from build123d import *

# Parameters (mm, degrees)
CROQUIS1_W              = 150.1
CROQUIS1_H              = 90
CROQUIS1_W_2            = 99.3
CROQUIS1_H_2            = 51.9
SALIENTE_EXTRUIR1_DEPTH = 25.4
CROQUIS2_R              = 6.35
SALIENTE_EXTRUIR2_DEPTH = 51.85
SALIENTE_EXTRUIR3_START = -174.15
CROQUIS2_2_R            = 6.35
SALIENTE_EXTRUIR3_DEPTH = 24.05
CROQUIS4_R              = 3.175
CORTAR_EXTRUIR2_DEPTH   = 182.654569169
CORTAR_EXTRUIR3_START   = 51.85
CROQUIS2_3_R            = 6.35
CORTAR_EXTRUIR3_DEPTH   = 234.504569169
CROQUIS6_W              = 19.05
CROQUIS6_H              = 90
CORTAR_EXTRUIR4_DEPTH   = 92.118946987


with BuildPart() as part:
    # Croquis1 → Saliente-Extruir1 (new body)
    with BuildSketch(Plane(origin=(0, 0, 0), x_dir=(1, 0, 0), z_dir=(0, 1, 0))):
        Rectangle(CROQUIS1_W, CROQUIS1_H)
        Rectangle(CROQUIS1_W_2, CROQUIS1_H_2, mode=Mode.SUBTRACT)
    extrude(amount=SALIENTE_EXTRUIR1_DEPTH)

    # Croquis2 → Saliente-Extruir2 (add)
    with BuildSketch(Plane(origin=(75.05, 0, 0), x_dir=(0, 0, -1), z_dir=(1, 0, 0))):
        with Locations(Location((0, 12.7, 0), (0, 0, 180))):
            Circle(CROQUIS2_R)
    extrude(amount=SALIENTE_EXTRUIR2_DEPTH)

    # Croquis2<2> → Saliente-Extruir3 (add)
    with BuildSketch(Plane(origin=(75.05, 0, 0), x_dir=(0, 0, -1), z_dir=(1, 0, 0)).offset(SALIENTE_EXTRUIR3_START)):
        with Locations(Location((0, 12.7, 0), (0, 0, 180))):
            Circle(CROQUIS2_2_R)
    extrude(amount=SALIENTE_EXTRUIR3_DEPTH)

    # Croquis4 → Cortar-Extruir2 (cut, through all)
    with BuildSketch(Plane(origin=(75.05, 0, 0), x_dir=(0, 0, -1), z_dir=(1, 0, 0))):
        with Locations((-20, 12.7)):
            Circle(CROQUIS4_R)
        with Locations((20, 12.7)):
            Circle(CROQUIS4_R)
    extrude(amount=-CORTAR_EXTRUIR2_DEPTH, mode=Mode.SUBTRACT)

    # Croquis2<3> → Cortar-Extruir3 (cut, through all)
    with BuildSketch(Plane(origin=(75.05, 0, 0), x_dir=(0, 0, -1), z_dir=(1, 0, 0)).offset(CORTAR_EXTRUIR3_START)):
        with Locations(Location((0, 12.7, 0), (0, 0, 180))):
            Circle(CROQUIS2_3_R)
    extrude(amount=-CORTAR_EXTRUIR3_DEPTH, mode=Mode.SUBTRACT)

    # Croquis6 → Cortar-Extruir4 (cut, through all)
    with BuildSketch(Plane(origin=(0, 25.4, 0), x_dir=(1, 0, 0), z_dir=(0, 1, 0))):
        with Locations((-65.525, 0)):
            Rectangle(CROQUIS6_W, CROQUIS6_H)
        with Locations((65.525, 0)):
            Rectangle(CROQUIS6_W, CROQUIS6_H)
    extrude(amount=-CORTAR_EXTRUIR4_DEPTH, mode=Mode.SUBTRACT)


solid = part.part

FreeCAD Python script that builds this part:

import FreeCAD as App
import Part
import Sketcher

V = App.Vector

doc = App.newDocument("Part")
body = doc.addObject("PartDesign::Body", "Body")

sketch1 = body.newObject("Sketcher::SketchObject", "Sketch")
sketch1.AttachmentSupport = (doc.getObject("XZ_Plane"), [""])
sketch1.MapMode = "FlatFace"
sketch1.addGeometry([
    Part.LineSegment(V(-75, -45, 0), V(-75, 45, 0)),
    Part.LineSegment(V(-75, 45, 0), V(75, 45, 0)),
    Part.LineSegment(V(75, 45, 0), V(75, -45, 0)),
    Part.LineSegment(V(75, -45, 0), V(-75, -45, 0)),
    Part.LineSegment(V(50, 26, 0), V(-50, 26, 0)),
    Part.LineSegment(V(-50, 26, 0), V(-50, -26, 0)),
    Part.LineSegment(V(-50, -26, 0), V(50, -26, 0)),
    Part.LineSegment(V(50, -26, 0), V(50, 26, 0)),
], False)
sketch1.addConstraint([
    Sketcher.Constraint("Coincident", 0, 2, 1, 1),
    Sketcher.Constraint("Coincident", 1, 2, 2, 1),
    Sketcher.Constraint("Coincident", 2, 2, 3, 1),
    Sketcher.Constraint("Coincident", 3, 2, 0, 1),
    Sketcher.Constraint("Coincident", 4, 2, 5, 1),
    Sketcher.Constraint("Coincident", 5, 2, 6, 1),
    Sketcher.Constraint("Coincident", 6, 2, 7, 1),
    Sketcher.Constraint("Coincident", 7, 2, 4, 1),
    Sketcher.Constraint("Vertical", 0),
    Sketcher.Constraint("Horizontal", 1),
    Sketcher.Constraint("Vertical", 2),
    Sketcher.Constraint("Horizontal", 3),
    Sketcher.Constraint("Horizontal", 4),
    Sketcher.Constraint("Vertical", 5),
    Sketcher.Constraint("Horizontal", 6),
    Sketcher.Constraint("Vertical", 7),
    Sketcher.Constraint("Symmetric", 0, 2, 2, 2, -1, 1),
    Sketcher.Constraint("Symmetric", 4, 2, 6, 2, -1, 1),
    Sketcher.Constraint("DistanceY", 0, 1, 0, 2, 90.0),
    Sketcher.Constraint("DistanceX", 1, 1, 1, 2, 150.1),
    Sketcher.Constraint("DistanceX", 4, 2, 4, 1, 99.3),
    Sketcher.Constraint("DistanceY", 5, 2, 5, 1, 51.9),
])
pad1 = body.newObject("PartDesign::Pad", "Pad")
pad1.Profile = sketch1
pad1.Length = 25.4
pad1.Reversed = True

sketch2 = body.newObject("Sketcher::SketchObject", "Sketch001")
sketch2.AttachmentSupport = (doc.getObject("YZ_Plane"), [""])
sketch2.MapMode = "FlatFace"
sketch2.AttachmentOffset = App.Placement(V(0, 0, 75.05), App.Rotation())
sketch2.addGeometry(Part.Circle(V(13, 0, 0), V(0, 0, 1), 6), False)
sketch2.addConstraint([
    Sketcher.Constraint("PointOnObject", 0, 3, -1),
    Sketcher.Constraint("Diameter", 0, 12.7),
    Sketcher.Constraint("DistanceX", -1, 1, 0, 3, 12.7),
])
pad2 = body.newObject("PartDesign::Pad", "Pad001")
pad2.Profile = sketch2
pad2.Length = 51.85

sketch3 = body.newObject("Sketcher::SketchObject", "Sketch002")
sketch3.AttachmentSupport = (doc.getObject("YZ_Plane"), [""])
sketch3.MapMode = "FlatFace"
sketch3.AttachmentOffset = App.Placement(V(0, 0, -99.1), App.Rotation())
sketch3.addGeometry(Part.Circle(V(13, 0, 0), V(0, 0, 1), 6), False)
sketch3.addConstraint([
    Sketcher.Constraint("PointOnObject", 0, 3, -1),
    Sketcher.Constraint("Diameter", 0, 12.7),
    Sketcher.Constraint("DistanceX", -1, 1, 0, 3, 12.7),
])
pad3 = body.newObject("PartDesign::Pad", "Pad002")
pad3.Profile = sketch3
pad3.Length = 24.05

sketch4 = body.newObject("Sketcher::SketchObject", "Sketch003")
sketch4.AttachmentSupport = (doc.getObject("YZ_Plane"), [""])
sketch4.MapMode = "FlatFace"
sketch4.AttachmentOffset = App.Placement(V(0, 0, 75.05), App.Rotation())
sketch4.addGeometry([
    Part.Circle(V(12.7, 20, 0), V(0, 0, 1), 3.2),
    Part.Circle(V(12.7, -20, 0), V(0, 0, 1), 3.2),
], False)
sketch4.addConstraint([
    Sketcher.Constraint("Equal", 0, 1),
    Sketcher.Constraint("Symmetric", 0, 3, 1, 3, -1),
    Sketcher.Constraint("Diameter", 0, 6.35),
    Sketcher.Constraint("DistanceY", -1, 1, 0, 3, 20.0),
    Sketcher.Constraint("DistanceX", -1, 1, 0, 3, 12.7),
])
pocket1 = body.newObject("PartDesign::Pocket", "Pocket")
pocket1.Profile = sketch4
pocket1.Type = "ThroughAll"

sketch5 = body.newObject("Sketcher::SketchObject", "Sketch004")
sketch5.AttachmentSupport = (doc.getObject("YZ_Plane"), [""])
sketch5.MapMode = "FlatFace"
sketch5.AttachmentOffset = App.Placement(V(0, 0, 126.9), App.Rotation())
sketch5.addGeometry(Part.Circle(V(13, 0, 0), V(0, 0, 1), 6), False)
sketch5.addConstraint([
    Sketcher.Constraint("PointOnObject", 0, 3, -1),
    Sketcher.Constraint("Diameter", 0, 12.7),
    Sketcher.Constraint("DistanceX", -1, 1, 0, 3, 12.7),
])
pocket2 = body.newObject("PartDesign::Pocket", "Pocket001")
pocket2.Profile = sketch5
pocket2.Type = "ThroughAll"

sketch6 = body.newObject("Sketcher::SketchObject", "Sketch005")
sketch6.AttachmentSupport = (doc.getObject("XZ_Plane"), [""])
sketch6.MapMode = "FlatFace"
sketch6.AttachmentOffset = App.Placement(V(0, 0, -25.4), App.Rotation())
sketch6.addGeometry([
    Part.LineSegment(V(-75, -45, 0), V(-75, 45, 0)),
    Part.LineSegment(V(-75, 45, 0), V(-56, 45, 0)),
    Part.LineSegment(V(-56, 45, 0), V(-56, -45, 0)),
    Part.LineSegment(V(-56, -45, 0), V(-75, -45, 0)),
    Part.LineSegment(V(56, -45, 0), V(56, 45, 0)),
    Part.LineSegment(V(56, 45, 0), V(75, 45, 0)),
    Part.LineSegment(V(75, 45, 0), V(75, -45, 0)),
    Part.LineSegment(V(75, -45, 0), V(56, -45, 0)),
], False)
sketch6.addConstraint([
    Sketcher.Constraint("Coincident", 0, 2, 1, 1),
    Sketcher.Constraint("Coincident", 1, 2, 2, 1),
    Sketcher.Constraint("Coincident", 2, 2, 3, 1),
    Sketcher.Constraint("Coincident", 3, 2, 0, 1),
    Sketcher.Constraint("Coincident", 4, 2, 5, 1),
    Sketcher.Constraint("Coincident", 5, 2, 6, 1),
    Sketcher.Constraint("Coincident", 6, 2, 7, 1),
    Sketcher.Constraint("Coincident", 7, 2, 4, 1),
    Sketcher.Constraint("Vertical", 0),
    Sketcher.Constraint("Horizontal", 1),
    Sketcher.Constraint("Vertical", 2),
    Sketcher.Constraint("Horizontal", 3),
    Sketcher.Constraint("Vertical", 4),
    Sketcher.Constraint("Horizontal", 5),
    Sketcher.Constraint("Vertical", 6),
    Sketcher.Constraint("Horizontal", 7),
    Sketcher.Constraint("Symmetric", 2, 2, 4, 2, -1, 1),
    Sketcher.Constraint("Symmetric", 0, 2, 6, 2, -1, 1),
    Sketcher.Constraint("Horizontal", 1, 2, 4, 2),
    Sketcher.Constraint("DistanceY", 0, 1, 0, 2, 90.0),
    Sketcher.Constraint("DistanceX", 1, 2, -1, 1, 56.0),
    Sketcher.Constraint("DistanceX", 1, 1, 1, 2, 19.05),
])
pocket3 = body.newObject("PartDesign::Pocket", "Pocket002")
pocket3.Profile = sketch6
pocket3.Type = "ThroughAll"
pocket3.Reversed = True

doc.recompute()
